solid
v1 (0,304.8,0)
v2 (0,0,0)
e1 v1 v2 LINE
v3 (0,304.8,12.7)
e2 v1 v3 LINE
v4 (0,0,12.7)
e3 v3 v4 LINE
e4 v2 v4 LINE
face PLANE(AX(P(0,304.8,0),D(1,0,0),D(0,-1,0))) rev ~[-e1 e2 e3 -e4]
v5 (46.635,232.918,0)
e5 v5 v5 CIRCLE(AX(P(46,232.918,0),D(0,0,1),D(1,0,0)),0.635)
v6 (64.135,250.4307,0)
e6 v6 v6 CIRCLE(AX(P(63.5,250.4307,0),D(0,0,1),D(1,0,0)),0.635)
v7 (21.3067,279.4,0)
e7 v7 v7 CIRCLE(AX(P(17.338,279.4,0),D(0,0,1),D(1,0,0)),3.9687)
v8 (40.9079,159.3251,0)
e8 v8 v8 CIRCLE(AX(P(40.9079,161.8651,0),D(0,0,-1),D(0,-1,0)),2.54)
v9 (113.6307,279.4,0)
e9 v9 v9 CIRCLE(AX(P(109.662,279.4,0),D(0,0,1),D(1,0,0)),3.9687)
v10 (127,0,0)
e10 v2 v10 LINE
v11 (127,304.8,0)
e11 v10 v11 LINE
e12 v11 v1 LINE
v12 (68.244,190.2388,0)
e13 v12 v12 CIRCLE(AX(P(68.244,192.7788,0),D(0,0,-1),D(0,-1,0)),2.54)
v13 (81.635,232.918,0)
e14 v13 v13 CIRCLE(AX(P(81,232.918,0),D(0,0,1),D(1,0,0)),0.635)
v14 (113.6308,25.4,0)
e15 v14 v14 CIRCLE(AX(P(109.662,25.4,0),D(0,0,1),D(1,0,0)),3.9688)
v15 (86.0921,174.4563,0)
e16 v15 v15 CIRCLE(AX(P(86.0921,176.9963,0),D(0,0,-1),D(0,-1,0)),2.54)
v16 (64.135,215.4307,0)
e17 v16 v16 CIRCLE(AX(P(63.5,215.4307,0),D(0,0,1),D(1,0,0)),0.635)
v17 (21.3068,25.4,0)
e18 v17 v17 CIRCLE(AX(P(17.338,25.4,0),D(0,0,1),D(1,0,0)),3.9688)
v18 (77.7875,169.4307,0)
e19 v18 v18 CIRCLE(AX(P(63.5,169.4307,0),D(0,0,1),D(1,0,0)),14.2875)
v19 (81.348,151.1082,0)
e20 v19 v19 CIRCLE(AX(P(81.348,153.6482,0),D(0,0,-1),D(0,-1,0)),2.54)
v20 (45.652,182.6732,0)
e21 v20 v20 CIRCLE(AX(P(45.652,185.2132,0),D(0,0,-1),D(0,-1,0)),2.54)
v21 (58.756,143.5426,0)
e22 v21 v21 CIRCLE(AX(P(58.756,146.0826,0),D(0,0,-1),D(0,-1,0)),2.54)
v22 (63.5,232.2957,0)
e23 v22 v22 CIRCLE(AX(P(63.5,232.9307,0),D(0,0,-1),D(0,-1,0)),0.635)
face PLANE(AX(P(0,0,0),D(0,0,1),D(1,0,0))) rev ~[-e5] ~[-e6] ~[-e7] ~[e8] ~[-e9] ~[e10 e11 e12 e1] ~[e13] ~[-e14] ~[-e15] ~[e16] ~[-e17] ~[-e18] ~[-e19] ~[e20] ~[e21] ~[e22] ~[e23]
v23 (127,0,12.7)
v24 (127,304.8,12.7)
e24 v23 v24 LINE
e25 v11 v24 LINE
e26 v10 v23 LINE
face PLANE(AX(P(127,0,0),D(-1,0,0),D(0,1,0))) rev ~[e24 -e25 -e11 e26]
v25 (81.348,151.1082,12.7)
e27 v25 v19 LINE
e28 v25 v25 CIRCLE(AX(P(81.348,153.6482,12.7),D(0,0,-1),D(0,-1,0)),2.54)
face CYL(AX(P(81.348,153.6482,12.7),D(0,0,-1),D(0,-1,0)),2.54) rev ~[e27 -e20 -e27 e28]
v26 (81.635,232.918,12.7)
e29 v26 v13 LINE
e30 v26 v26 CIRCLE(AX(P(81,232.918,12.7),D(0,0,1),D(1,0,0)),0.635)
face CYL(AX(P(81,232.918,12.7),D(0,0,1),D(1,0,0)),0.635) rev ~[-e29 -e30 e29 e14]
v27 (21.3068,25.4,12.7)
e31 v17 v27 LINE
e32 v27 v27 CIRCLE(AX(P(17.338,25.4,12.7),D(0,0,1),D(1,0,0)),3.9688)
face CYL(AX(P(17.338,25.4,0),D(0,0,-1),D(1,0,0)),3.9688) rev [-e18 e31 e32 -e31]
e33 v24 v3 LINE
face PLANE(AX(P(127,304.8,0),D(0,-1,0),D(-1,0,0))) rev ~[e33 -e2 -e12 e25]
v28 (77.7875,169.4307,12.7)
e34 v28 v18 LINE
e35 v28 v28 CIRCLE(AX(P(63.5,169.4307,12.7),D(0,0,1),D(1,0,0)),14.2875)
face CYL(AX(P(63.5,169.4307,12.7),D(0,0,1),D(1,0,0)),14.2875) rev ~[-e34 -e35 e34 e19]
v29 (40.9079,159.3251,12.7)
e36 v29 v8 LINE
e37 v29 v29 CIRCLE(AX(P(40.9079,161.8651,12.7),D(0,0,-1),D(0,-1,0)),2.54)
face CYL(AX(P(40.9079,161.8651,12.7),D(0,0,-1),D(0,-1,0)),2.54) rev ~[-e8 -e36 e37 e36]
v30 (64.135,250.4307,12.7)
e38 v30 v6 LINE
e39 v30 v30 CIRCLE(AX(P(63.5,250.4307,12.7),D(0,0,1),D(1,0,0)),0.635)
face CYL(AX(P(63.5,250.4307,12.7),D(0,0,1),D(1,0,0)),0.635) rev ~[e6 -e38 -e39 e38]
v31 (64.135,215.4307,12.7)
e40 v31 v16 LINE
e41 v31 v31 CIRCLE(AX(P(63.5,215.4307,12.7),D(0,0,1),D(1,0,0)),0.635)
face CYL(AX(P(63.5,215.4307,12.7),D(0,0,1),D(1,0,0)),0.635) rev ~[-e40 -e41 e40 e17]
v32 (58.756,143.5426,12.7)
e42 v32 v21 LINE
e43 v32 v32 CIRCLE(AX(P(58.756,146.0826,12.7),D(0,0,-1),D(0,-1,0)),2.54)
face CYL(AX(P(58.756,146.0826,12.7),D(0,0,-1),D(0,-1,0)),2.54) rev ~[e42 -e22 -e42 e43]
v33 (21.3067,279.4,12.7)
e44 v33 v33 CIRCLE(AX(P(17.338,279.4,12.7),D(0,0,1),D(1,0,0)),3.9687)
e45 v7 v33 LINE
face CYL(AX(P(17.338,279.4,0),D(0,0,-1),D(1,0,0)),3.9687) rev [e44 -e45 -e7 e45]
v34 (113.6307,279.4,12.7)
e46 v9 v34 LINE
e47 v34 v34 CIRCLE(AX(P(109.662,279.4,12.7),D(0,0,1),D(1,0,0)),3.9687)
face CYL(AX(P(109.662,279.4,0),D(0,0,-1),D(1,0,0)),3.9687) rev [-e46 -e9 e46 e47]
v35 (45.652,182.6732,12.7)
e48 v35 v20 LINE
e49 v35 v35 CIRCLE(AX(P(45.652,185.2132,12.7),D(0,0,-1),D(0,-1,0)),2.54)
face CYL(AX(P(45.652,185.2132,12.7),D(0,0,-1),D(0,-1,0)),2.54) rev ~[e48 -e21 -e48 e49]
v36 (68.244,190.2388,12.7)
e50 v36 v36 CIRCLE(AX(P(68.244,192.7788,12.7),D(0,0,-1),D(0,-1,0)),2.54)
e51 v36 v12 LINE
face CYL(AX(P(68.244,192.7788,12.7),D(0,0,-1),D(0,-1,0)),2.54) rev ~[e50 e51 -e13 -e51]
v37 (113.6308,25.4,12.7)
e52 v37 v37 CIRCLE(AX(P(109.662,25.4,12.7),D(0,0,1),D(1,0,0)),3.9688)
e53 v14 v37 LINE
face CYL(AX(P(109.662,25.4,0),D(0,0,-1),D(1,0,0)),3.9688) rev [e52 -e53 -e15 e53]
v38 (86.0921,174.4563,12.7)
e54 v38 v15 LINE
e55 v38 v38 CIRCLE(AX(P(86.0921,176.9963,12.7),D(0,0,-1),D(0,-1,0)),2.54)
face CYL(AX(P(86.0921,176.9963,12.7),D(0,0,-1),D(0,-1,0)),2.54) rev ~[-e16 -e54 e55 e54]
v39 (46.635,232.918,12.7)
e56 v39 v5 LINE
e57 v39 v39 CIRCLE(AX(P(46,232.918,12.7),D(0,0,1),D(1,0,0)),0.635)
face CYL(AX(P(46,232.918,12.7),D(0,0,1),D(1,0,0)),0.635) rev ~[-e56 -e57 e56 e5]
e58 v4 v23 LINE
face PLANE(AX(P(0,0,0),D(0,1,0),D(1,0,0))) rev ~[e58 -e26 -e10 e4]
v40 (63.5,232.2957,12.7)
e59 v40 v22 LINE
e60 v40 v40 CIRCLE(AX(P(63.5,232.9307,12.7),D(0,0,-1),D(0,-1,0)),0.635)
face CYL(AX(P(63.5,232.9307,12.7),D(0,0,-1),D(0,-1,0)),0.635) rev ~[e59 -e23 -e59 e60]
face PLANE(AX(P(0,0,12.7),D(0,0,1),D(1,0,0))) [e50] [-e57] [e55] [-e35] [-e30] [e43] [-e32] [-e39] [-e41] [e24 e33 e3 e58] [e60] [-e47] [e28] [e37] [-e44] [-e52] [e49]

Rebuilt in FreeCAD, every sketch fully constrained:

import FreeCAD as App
import Part
import Sketcher

V = App.Vector
Q = App.Units.Quantity


def add_polygon(sketch, points):
    """Adds a closed chain of lines whose ends are joined by coincident constraints."""
    first, n = sketch.GeometryCount, len(points)
    for a, b in zip(points, points[1:] + points[:1]):
        sketch.addGeometry(Part.LineSegment(App.Vector(*a, 0), App.Vector(*b, 0)), False)
    for i in range(n):
        sketch.addConstraint(Sketcher.Constraint("Coincident", first + i, 2, first + (i + 1) % n, 1))

doc = App.newDocument("Part")
params = doc.addObject("Spreadsheet::Sheet", "Params")
for row, (alias, value) in enumerate([
    ("sketch1_width", "5 in"),
    ("sketch1_height", "12 in"),
    ("sketch1_diameter", "0.3125 in"),
    ("pad1_length", "0.5 in"),
    ("sketch2_diameter", "0.05 in"),
    ("hole_diameter", "0.05 in"),
    ("sketch3_diameter", "0.05 in"),
    ("pocket1_length", "1 in"),
    ("sketch4_diameter", "1.125 in"),
    ("pocket2_length", "1 in"),
    ("sketch5_diameter", "0.2 in"),
    ("hole2_diameter", "0.2 in"),
], start=1):
    params.set(f"A{row}", alias)
    params.set(f"B{row}", "=" + value)
    params.setAlias(f"B{row}", alias)

body = doc.addObject("PartDesign::Body", "Body")

# Sketch on XY plane
sketch1 = doc.addObject("Sketcher::SketchObject", "Sketch")
body.addObject(sketch1)
sketch1.AttachmentSupport = (doc.XY_Plane, [""])
sketch1.MapMode = "FlatFace"
add_polygon(sketch1, [(0, 304.8), (0, 0), (127, 0), (127, 304.8)])  # lines 0-3
sketch1.addGeometry(Part.Circle(V(17.3, 25.4, 0), V(0, 0, 1), 4), False)  # 4
sketch1.addGeometry(Part.Circle(V(109.7, 25.4, 0), V(0, 0, 1), 4), False)  # 5
sketch1.addGeometry(Part.Circle(V(17.3, 279.4, 0), V(0, 0, 1), 4), False)  # 6
sketch1.addGeometry(Part.Circle(V(109.7, 279.4, 0), V(0, 0, 1), 4), False)  # 7
sketch1.addConstraint(Sketcher.Constraint("Vertical", 0))
sketch1.addConstraint(Sketcher.Constraint("Horizontal", 1))
sketch1.addConstraint(Sketcher.Constraint("Vertical", 2))
sketch1.addConstraint(Sketcher.Constraint("Horizontal", 3))
sketch1.addConstraint(Sketcher.Constraint("Coincident", 0, 2, -1, 1))
sketch1.addConstraint(Sketcher.Constraint("Equal", 4, 5))
sketch1.addConstraint(Sketcher.Constraint("Equal", 5, 6))
sketch1.addConstraint(Sketcher.Constraint("Equal", 6, 7))
sketch1.addConstraint(Sketcher.Constraint("Horizontal", 4, 3, 5, 3))
sketch1.addConstraint(Sketcher.Constraint("Horizontal", 6, 3, 7, 3))
sketch1.addConstraint(Sketcher.Constraint("Vertical", 4, 3, 6, 3))
sketch1.addConstraint(Sketcher.Constraint("Vertical", 5, 3, 7, 3))
sketch1.addConstraint(Sketcher.Constraint("DistanceX", 1, 1, 1, 2, Q("5 in")))
sketch1.addConstraint(Sketcher.Constraint("DistanceY", 0, 2, 0, 1, Q("12 in")))
sketch1.addConstraint(Sketcher.Constraint("Diameter", 4, Q("0.3125 in")))
sketch1.addConstraint(Sketcher.Constraint("DistanceY", -1, 1, 4, 3, Q("1 in")))
sketch1.addConstraint(Sketcher.Constraint("DistanceY", 7, 3, 2, 2, Q("1 in")))
sketch1.addConstraint(Sketcher.Constraint("DistanceX", -1, 1, 4, 3, Q("0.6826 in")))
sketch1.addConstraint(Sketcher.Constraint("DistanceX", 5, 3, 1, 2, Q("0.6826 in")))
sketch1.setExpression("Constraints[16]", "Params.sketch1_width")
sketch1.setExpression("Constraints[17]", "Params.sketch1_height")
sketch1.setExpression("Constraints[18]", "Params.sketch1_diameter")
pad1 = doc.addObject("PartDesign::Pad", "Pad")
body.addObject(pad1)
pad1.Profile = sketch1
pad1.setExpression("Length", "Params.pad1_length")

# Sketch on XY plane
sketch2 = doc.addObject("Sketcher::SketchObject", "Sketch001")
body.addObject(sketch2)
sketch2.AttachmentSupport = (doc.XY_Plane, [""])
sketch2.MapMode = "FlatFace"
sketch2.AttachmentOffset = App.Placement(V(0, 0, 0.5 * 25.4), App.Rotation())
sketch2.addGeometry(Part.Circle(V(63.5, 232.9, 0), V(0, 0, 1), 0.6), False)
sketch2.addConstraint(Sketcher.Constraint("Diameter", 0, Q("0.05 in")))
sketch2.addConstraint(Sketcher.Constraint("DistanceX", -1, 1, 0, 3, Q("2.5 in")))
sketch2.addConstraint(Sketcher.Constraint("DistanceY", -1, 1, 0, 3, Q("9.1705 in")))
sketch2.setExpression("Constraints[0]", "Params.sketch2_diameter")
doc.recompute()
hole = doc.addObject("PartDesign::Hole", "Hole")
body.addObject(hole)
hole.Profile = sketch2
hole.ThreadType = "None"
hole.setExpression("Diameter", "Params.hole_diameter")
hole.DepthType = "ThroughAll"

# Sketch on XY plane
sketch3 = doc.addObject("Sketcher::SketchObject", "Sketch002")
body.addObject(sketch3)
sketch3.AttachmentSupport = (doc.XY_Plane, [""])
sketch3.MapMode = "FlatFace"
sketch3.AttachmentOffset = App.Placement(V(0, 0, 0.5 * 25.4), App.Rotation())
sketch3.addGeometry(Part.Circle(V(46, 232.9, 0), V(0, 0, 1), 0.6), False)
sketch3.addGeometry(Part.Circle(V(63.5, 250.4, 0), V(0, 0, 1), 0.6), False)
sketch3.addGeometry(Part.Circle(V(63.5, 215.4, 0), V(0, 0, 1), 0.6), False)
sketch3.addGeometry(Part.Circle(V(81, 232.9, 0), V(0, 0, 1), 0.6), False)
sketch3.addConstraint(Sketcher.Constraint("Equal", 0, 1))
sketch3.addConstraint(Sketcher.Constraint("Equal", 1, 2))
sketch3.addConstraint(Sketcher.Constraint("Equal", 2, 3))
sketch3.addConstraint(Sketcher.Constraint("Horizontal", 0, 3, 3, 3))
sketch3.addConstraint(Sketcher.Constraint("Vertical", 1, 3, 2, 3))
sketch3.addConstraint(Sketcher.Constraint("Diameter", 0, Q("0.05 in")))
sketch3.addConstraint(Sketcher.Constraint("DistanceX", -1, 1, 1, 3, Q("2.5 in")))
sketch3.addConstraint(Sketcher.Constraint("DistanceY", -1, 1, 0, 3, Q("9.17 in")))
sketch3.addConstraint(Sketcher.Constraint("DistanceX", 0, 3, 1, 3, Q("17.5 mm")))
sketch3.addConstraint(Sketcher.Constraint("DistanceY", 2, 3, 1, 3, Q("35 mm")))
sketch3.addConstraint(Sketcher.Constraint("DistanceX", 2, 3, 3, 3, Q("17.5 mm")))
sketch3.addConstraint(Sketcher.Constraint("DistanceY", -1, 1, 1, 3, Q("250.4307 mm")))
sketch3.setExpression("Constraints[5]", "Params.sketch3_diameter")
pocket1 = doc.addObject("PartDesign::Pocket", "Pocket")
body.addObject(pocket1)
pocket1.Profile = sketch3
pocket1.setExpression("Length", "Params.pocket1_length")

# Sketch on XY plane
sketch4 = doc.addObject("Sketcher::SketchObject", "Sketch003")
body.addObject(sketch4)
sketch4.AttachmentSupport = (doc.XY_Plane, [""])
sketch4.MapMode = "FlatFace"
sketch4.AttachmentOffset = App.Placement(V(0, 0, 0.5 * 25.4), App.Rotation())
sketch4.addGeometry(Part.Circle(V(64, 169, 0), V(0, 0, 1), 14), False)
sketch4.addConstraint(Sketcher.Constraint("Diameter", 0, Q("1.125 in")))
sketch4.addConstraint(Sketcher.Constraint("DistanceX", -1, 1, 0, 3, Q("2.5 in")))
sketch4.addConstraint(Sketcher.Constraint("DistanceY", -1, 1, 0, 3, Q("6.6705 in")))
sketch4.setExpression("Constraints[0]", "Params.sketch4_diameter")
pocket2 = doc.addObject("PartDesign::Pocket", "Pocket001")
body.addObject(pocket2)
pocket2.Profile = sketch4
pocket2.setExpression("Length", "Params.pocket2_length")

# Sketch on XY plane
sketch5 = doc.addObject("Sketcher::SketchObject", "Sketch004")
body.addObject(sketch5)
sketch5.AttachmentSupport = (doc.XY_Plane, [""])
sketch5.MapMode = "FlatFace"
sketch5.AttachmentOffset = App.Placement(V(0, 0, 0.5 * 25.4), App.Rotation())
sketch5.addGeometry(Part.Circle(V(68.2, 192.8, 0), V(0, 0, 1), 2.5), False)
sketch5.addGeometry(Part.Circle(V(45.7, 185.2, 0), V(0, 0, 1), 2.5), False)
sketch5.addGeometry(Part.Circle(V(40.9, 161.9, 0), V(0, 0, 1), 2.5), False)
sketch5.addGeometry(Part.Circle(V(58.8, 146.1, 0), V(0, 0, 1), 2.5), False)
sketch5.addGeometry(Part.Circle(V(81.3, 153.6, 0), V(0, 0, 1), 2.5), False)
sketch5.addGeometry(Part.Circle(V(86.1, 177, 0), V(0, 0, 1), 2.5), False)
sketch5.addConstraint(Sketcher.Constraint("Equal", 0, 1))
sketch5.addConstraint(Sketcher.Constraint("Equal", 1, 2))
sketch5.addConstraint(Sketcher.Constraint("Equal", 2, 3))
sketch5.addConstraint(Sketcher.Constraint("Equal", 3, 4))
sketch5.addConstraint(Sketcher.Constraint("Equal", 4, 5))
sketch5.addConstraint(Sketcher.Constraint("Diameter", 0, Q("0.2 in")))
sketch5.addConstraint(Sketcher.Constraint("DistanceX", 1, 3, 3, 3, Q("0.5159 in")))
sketch5.addConstraint(Sketcher.Constraint("DistanceX", 0, 3, 4, 3, Q("0.5159 in")))
sketch5.addConstraint(Sketcher.Constraint("DistanceY", 4, 3, 2, 3, Q("0.3235 in")))
sketch5.addConstraint(Sketcher.Constraint("DistanceY", 5, 3, 1, 3, Q("0.3235 in")))
sketch5.addConstraint(Sketcher.Constraint("DistanceX", 2, 3, 5, 3, Q("1.7789 in")))
sketch5.addConstraint(Sketcher.Constraint("DistanceX", -1, 1, 0, 3, Q("68.244 mm")))
sketch5.addConstraint(Sketcher.Constraint("DistanceY", -1, 1, 0, 3, Q("192.7788 mm")))
sketch5.addConstraint(Sketcher.Constraint("DistanceX", -1, 1, 1, 3, Q("45.652 mm")))
sketch5.addConstraint(Sketcher.Constraint("DistanceY", -1, 1, 1, 3, Q("185.2132 mm")))
sketch5.addConstraint(Sketcher.Constraint("DistanceX", -1, 1, 2, 3, Q("40.908 mm")))
sketch5.addConstraint(Sketcher.Constraint("DistanceY", -1, 1, 2, 3, Q("161.865 mm")))
sketch5.addConstraint(Sketcher.Constraint("DistanceY", -1, 1, 3, 3, Q("146.0826 mm")))
sketch5.setExpression("Constraints[5]", "Params.sketch5_diameter")
doc.recompute()
hole2 = doc.addObject("PartDesign::Hole", "Hole001")
body.addObject(hole2)
hole2.Profile = sketch5
hole2.ThreadType = "None"
hole2.setExpression("Diameter", "Params.hole2_diameter")
hole2.DepthType = "ThroughAll"

doc.recompute()
